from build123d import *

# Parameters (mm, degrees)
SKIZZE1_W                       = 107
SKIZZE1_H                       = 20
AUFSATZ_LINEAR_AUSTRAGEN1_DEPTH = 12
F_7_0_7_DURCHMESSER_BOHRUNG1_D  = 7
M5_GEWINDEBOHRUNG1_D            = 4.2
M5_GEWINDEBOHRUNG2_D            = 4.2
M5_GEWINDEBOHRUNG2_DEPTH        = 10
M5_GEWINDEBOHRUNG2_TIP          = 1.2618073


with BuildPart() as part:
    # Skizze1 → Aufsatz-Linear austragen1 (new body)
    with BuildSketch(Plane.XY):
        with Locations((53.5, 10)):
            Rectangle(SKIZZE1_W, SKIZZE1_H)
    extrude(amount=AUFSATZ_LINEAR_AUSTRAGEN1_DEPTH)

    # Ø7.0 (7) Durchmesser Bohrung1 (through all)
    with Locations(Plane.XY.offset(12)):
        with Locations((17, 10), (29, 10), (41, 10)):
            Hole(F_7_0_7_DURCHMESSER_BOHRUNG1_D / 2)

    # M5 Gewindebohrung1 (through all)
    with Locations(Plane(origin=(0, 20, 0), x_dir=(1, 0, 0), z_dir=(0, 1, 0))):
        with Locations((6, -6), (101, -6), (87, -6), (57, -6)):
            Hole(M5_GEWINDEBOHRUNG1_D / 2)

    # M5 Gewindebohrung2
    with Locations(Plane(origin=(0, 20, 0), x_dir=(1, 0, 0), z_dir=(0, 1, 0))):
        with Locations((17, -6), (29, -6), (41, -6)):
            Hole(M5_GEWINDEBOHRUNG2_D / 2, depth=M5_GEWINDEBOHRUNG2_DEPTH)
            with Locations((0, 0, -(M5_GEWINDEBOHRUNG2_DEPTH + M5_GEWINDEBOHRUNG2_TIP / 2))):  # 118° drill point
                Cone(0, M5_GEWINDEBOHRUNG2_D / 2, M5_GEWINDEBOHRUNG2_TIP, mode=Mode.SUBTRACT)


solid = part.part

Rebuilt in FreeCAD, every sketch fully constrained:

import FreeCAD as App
import Part
import Sketcher
Q = App.Units.Quantity

doc = App.newDocument("Part")
params = doc.addObject("Spreadsheet::Sheet", "Params")
for row, (alias, value) in enumerate([
    ("sketch1_width", "107 mm"),
    ("sketch1_height", "20 mm"),
    ("pad1_length", "12 mm"),
    ("sketch2_diameter", "7 mm"),
    ("hole_diameter", "7 mm"),
    ("sketch3_diameter", "4.2 mm"),
    ("hole2_diameter", "4.2 mm"),
    ("sketch4_diameter", "4.2 mm"),
    ("hole3_diameter", "4.2 mm"),
    ("hole3_depth", "10 mm"),
], start=1):
    params.set(f"A{row}", alias)
    params.set(f"B{row}", "=" + value)
    params.setAlias(f"B{row}", alias)

body = doc.addObject("PartDesign::Body", "Body")

sketch1 = body.newObject("Sketcher::SketchObject", "Sketch")
sketch1.AttachmentSupport = (doc.getObject("XY_Plane"), [""])
sketch1.MapMode = "FlatFace"
sketch1.addGeometry(Part.LineSegment(App.Vector(0, 20, 0), App.Vector(0, 0, 0)), False)
sketch1.addGeometry(Part.LineSegment(App.Vector(0, 0, 0), App.Vector(107, 0, 0)), False)
sketch1.addGeometry(Part.LineSegment(App.Vector(107, 0, 0), App.Vector(107, 20, 0)), False)
sketch1.addGeometry(Part.LineSegment(App.Vector(107, 20, 0), App.Vector(0, 20, 0)), False)
sketch1.addConstraint(Sketcher.Constraint("Coincident", 0, 2, 1, 1))
sketch1.addConstraint(Sketcher.Constraint("Coincident", 1, 2, 2, 1))
sketch1.addConstraint(Sketcher.Constraint("Coincident", 2, 2, 3, 1))
sketch1.addConstraint(Sketcher.Constraint("Coincident", 3, 2, 0, 1))
sketch1.addConstraint(Sketcher.Constraint("Vertical", 0))
sketch1.addConstraint(Sketcher.Constraint("Horizontal", 1))
sketch1.addConstraint(Sketcher.Constraint("Vertical", 2))
sketch1.addConstraint(Sketcher.Constraint("Horizontal", 3))
sketch1.addConstraint(Sketcher.Constraint("Coincident", 0, 2, -1, 1))
sketch1.addConstraint(Sketcher.Constraint("DistanceX", 1, 1, 1, 2, Q("107 mm")))
sketch1.addConstraint(Sketcher.Constraint("DistanceY", 0, 2, 0, 1, Q("20 mm")))
sketch1.setExpression("Constraints[9]", "Params.sketch1_width")
sketch1.setExpression("Constraints[10]", "Params.sketch1_height")
pad1 = body.newObject("PartDesign::Pad", "Pad")
pad1.Profile = sketch1
pad1.setExpression("Length", "Params.pad1_length")

sketch2 = body.newObject("Sketcher::SketchObject", "Sketch001")
sketch2.AttachmentSupport = (doc.getObject("XY_Plane"), [""])
sketch2.MapMode = "FlatFace"
sketch2.AttachmentOffset = App.Placement(App.Vector(0, 0, 12), App.Rotation())
sketch2.addGeometry(Part.Circle(App.Vector(17, 10, 0), App.Vector(0, 0, 1), 3.5), False)
sketch2.addGeometry(Part.Circle(App.Vector(29, 10, 0), App.Vector(0, 0, 1), 3.5), False)
sketch2.addGeometry(Part.Circle(App.Vector(41, 10, 0), App.Vector(0, 0, 1), 3.5), False)
sketch2.addConstraint(Sketcher.Constraint("Equal", 0, 1))
sketch2.addConstraint(Sketcher.Constraint("Equal", 1, 2))
sketch2.addConstraint(Sketcher.Constraint("Horizontal", 0, 3, 1, 3))
sketch2.addConstraint(Sketcher.Constraint("Horizontal", 1, 3, 2, 3))
sketch2.addConstraint(Sketcher.Constraint("Diameter", 0, Q("7 mm")))
sketch2.addConstraint(Sketcher.Constraint("DistanceX", -1, 1, 0, 3, Q("17 mm")))
sketch2.addConstraint(Sketcher.Constraint("DistanceY", -1, 1, 0, 3, Q("10 mm")))
sketch2.addConstraint(Sketcher.Constraint("DistanceX", -1, 1, 1, 3, Q("29 mm")))
sketch2.addConstraint(Sketcher.Constraint("DistanceX", -1, 1, 2, 3, Q("41 mm")))
sketch2.setExpression("Constraints[4]", "Params.sketch2_diameter")
doc.recompute()
hole = body.newObject("PartDesign::Hole", "Hole")
hole.Profile = sketch2
hole.ThreadType = "None"
hole.setExpression("Diameter", "Params.hole_diameter")
hole.DepthType = "ThroughAll"

sketch3 = body.newObject("Sketcher::SketchObject", "Sketch002")
sketch3.AttachmentSupport = (doc.getObject("XZ_Plane"), [""])
sketch3.MapMode = "FlatFace"
sketch3.AttachmentOffset = App.Placement(App.Vector(0, 0, -20), App.Rotation())
sketch3.addGeometry(Part.Circle(App.Vector(6, 6, 0), App.Vector(0, 0, 1), 2.1), False)
sketch3.addGeometry(Part.Circle(App.Vector(101, 6, 0), App.Vector(0, 0, 1), 2.1), False)
sketch3.addGeometry(Part.Circle(App.Vector(87, 6, 0), App.Vector(0, 0, 1), 2.1), False)
sketch3.addGeometry(Part.Circle(App.Vector(57, 6, 0), App.Vector(0, 0, 1), 2.1), False)
sketch3.addConstraint(Sketcher.Constraint("Equal", 0, 1))
sketch3.addConstraint(Sketcher.Constraint("Equal", 1, 2))
sketch3.addConstraint(Sketcher.Constraint("Equal", 2, 3))
sketch3.addConstraint(Sketcher.Constraint("Horizontal", 0, 3, 1, 3))
sketch3.addConstraint(Sketcher.Constraint("Horizontal", 1, 3, 2, 3))
sketch3.addConstraint(Sketcher.Constraint("Horizontal", 2, 3, 3, 3))
sketch3.addConstraint(Sketcher.Constraint("Diameter", 0, Q("4.2 mm")))
sketch3.addConstraint(Sketcher.Constraint("DistanceX", -1, 1, 0, 3, Q("6 mm")))
sketch3.addConstraint(Sketcher.Constraint("DistanceY", -1, 1, 0, 3, Q("6 mm")))
sketch3.addConstraint(Sketcher.Constraint("DistanceX", -1, 1, 1, 3, Q("101 mm")))
sketch3.addConstraint(Sketcher.Constraint("DistanceX", -1, 1, 2, 3, Q("87 mm")))
sketch3.addConstraint(Sketcher.Constraint("DistanceX", -1, 1, 3, 3, Q("57 mm")))
sketch3.setExpression("Constraints[6]", "Params.sketch3_diameter")
doc.recompute()
hole2 = body.newObject("PartDesign::Hole", "Hole001")
hole2.Profile = sketch3
hole2.ThreadType = "None"
hole2.setExpression("Diameter", "Params.hole2_diameter")
hole2.DepthType = "ThroughAll"
hole2.Reversed = True

sketch4 = body.newObject("Sketcher::SketchObject", "Sketch003")
sketch4.AttachmentSupport = (doc.getObject("XZ_Plane"), [""])
sketch4.MapMode = "FlatFace"
sketch4.AttachmentOffset = App.Placement(App.Vector(0, 0, -20), App.Rotation())
sketch4.addGeometry(Part.Circle(App.Vector(17, 6, 0), App.Vector(0, 0, 1), 2.1), False)
sketch4.addGeometry(Part.Circle(App.Vector(29, 6, 0), App.Vector(0, 0, 1), 2.1), False)
sketch4.addGeometry(Part.Circle(App.Vector(41, 6, 0), App.Vector(0, 0, 1), 2.1), False)
sketch4.addConstraint(Sketcher.Constraint("Equal", 0, 1))
sketch4.addConstraint(Sketcher.Constraint("Equal", 1, 2))
sketch4.addConstraint(Sketcher.Constraint("Horizontal", 0, 3, 1, 3))
sketch4.addConstraint(Sketcher.Constraint("Horizontal", 1, 3, 2, 3))
sketch4.addConstraint(Sketcher.Constraint("Diameter", 0, Q("4.2 mm")))
sketch4.addConstraint(Sketcher.Constraint("DistanceX", -1, 1, 0, 3, Q("17 mm")))
sketch4.addConstraint(Sketcher.Constraint("DistanceY", -1, 1, 0, 3, Q("6 mm")))
sketch4.addConstraint(Sketcher.Constraint("DistanceX", -1, 1, 1, 3, Q("29 mm")))
sketch4.addConstraint(Sketcher.Constraint("DistanceX", -1, 1, 2, 3, Q("41 mm")))
sketch4.setExpression("Constraints[4]", "Params.sketch4_diameter")
doc.recompute()
hole3 = body.newObject("PartDesign::Hole", "Hole002")
hole3.Profile = sketch4
hole3.ThreadType = "None"
hole3.setExpression("Diameter", "Params.hole3_diameter")
hole3.DepthType = "Dimension"
hole3.setExpression("Depth", "Params.hole3_depth")
hole3.DrillPoint = "Angled"
hole3.DrillPointAngle = 118
hole3.Reversed = True

doc.recompute()
